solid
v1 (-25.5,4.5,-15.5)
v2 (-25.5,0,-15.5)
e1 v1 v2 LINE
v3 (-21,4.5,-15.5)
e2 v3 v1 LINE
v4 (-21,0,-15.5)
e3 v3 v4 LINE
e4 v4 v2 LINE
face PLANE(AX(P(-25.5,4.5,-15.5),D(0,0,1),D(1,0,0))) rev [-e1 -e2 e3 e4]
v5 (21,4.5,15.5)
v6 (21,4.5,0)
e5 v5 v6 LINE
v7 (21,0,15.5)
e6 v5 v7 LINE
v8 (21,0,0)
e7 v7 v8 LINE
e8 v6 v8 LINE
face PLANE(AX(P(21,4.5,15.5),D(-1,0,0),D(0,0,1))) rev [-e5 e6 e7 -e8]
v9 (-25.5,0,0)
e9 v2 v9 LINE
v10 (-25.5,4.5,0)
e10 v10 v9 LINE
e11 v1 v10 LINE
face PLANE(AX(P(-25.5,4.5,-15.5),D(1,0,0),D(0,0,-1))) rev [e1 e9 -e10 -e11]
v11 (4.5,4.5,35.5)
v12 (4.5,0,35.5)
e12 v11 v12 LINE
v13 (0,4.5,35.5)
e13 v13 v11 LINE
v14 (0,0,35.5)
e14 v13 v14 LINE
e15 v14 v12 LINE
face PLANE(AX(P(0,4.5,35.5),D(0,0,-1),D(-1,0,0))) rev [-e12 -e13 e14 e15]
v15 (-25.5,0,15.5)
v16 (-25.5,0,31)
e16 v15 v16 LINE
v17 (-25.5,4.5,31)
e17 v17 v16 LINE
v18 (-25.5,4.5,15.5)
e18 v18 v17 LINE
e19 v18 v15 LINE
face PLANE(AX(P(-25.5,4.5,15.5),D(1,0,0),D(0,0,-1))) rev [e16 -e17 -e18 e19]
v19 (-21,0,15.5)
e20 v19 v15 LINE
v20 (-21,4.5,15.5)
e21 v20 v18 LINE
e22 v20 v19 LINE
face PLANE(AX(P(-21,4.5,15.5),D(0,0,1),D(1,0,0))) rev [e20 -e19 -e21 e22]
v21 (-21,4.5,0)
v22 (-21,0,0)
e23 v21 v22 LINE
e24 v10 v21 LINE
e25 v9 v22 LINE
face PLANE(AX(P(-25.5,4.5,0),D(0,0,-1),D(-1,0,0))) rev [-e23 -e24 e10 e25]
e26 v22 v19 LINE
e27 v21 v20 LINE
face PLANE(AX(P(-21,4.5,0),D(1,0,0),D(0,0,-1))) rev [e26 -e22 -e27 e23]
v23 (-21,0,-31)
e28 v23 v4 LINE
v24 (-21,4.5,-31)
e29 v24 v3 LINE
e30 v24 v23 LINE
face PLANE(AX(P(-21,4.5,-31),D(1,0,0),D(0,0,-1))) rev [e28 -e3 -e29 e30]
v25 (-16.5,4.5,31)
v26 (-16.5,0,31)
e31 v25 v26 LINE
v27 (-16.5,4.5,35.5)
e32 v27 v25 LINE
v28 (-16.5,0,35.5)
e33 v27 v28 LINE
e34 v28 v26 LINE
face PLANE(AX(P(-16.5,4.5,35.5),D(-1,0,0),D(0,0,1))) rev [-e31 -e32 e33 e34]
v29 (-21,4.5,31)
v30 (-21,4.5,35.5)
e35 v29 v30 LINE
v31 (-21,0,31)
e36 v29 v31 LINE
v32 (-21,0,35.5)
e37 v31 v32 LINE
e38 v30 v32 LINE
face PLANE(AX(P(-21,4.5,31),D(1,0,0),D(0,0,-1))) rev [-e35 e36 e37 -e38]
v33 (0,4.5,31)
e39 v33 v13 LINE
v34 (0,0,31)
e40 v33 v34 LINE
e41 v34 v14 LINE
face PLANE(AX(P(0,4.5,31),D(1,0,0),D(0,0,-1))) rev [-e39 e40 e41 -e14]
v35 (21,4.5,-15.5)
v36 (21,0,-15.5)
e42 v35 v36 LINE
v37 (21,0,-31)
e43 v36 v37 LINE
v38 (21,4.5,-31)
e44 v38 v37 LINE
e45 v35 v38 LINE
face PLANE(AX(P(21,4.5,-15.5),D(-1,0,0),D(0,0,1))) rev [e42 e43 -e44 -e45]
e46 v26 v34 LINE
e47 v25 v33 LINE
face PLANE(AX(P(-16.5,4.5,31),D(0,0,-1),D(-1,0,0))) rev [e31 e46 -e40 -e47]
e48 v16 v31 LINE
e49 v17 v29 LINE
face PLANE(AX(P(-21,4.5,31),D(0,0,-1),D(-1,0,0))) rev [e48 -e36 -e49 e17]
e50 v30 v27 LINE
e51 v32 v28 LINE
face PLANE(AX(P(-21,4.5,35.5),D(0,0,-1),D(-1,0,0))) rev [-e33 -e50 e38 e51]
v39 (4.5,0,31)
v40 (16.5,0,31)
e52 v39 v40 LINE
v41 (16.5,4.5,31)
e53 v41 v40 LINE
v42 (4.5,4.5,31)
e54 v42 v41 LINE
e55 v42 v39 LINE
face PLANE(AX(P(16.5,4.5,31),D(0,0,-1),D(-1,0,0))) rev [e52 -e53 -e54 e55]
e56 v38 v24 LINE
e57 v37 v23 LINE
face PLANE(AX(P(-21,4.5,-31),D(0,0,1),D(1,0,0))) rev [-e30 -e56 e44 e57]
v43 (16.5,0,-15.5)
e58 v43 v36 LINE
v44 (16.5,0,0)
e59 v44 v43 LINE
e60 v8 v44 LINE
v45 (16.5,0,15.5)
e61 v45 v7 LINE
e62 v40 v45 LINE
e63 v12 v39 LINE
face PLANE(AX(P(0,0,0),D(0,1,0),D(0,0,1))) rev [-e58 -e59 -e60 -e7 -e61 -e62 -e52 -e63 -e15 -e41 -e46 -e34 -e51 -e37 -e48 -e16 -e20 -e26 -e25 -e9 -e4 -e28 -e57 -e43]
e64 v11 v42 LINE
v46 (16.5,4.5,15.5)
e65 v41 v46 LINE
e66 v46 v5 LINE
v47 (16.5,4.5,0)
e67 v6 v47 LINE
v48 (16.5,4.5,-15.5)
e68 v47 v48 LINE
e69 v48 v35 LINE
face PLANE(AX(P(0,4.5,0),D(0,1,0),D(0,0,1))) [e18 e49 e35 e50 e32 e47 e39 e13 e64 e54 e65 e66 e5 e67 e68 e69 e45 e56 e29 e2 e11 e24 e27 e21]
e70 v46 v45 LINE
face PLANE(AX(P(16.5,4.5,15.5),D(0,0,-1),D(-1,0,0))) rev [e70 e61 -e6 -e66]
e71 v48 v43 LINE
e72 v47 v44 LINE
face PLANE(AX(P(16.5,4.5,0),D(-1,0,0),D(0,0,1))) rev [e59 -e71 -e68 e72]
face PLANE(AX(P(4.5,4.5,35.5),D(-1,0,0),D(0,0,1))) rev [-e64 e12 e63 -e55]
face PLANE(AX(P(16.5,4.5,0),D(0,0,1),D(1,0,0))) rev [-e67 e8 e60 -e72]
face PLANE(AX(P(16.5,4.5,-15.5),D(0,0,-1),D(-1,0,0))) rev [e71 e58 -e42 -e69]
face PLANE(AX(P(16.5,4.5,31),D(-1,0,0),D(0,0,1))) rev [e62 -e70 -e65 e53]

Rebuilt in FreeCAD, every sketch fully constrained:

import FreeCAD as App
import Part
import Sketcher

V = App.Vector


def add_polygon(sketch, points):
    """Adds a closed chain of lines whose ends are joined by coincident constraints."""
    first, n = sketch.GeometryCount, len(points)
    for a, b in zip(points, points[1:] + points[:1]):
        sketch.addGeometry(Part.LineSegment(App.Vector(*a, 0), App.Vector(*b, 0)), False)
    for i in range(n):
        sketch.addConstraint(Sketcher.Constraint("Coincident", first + i, 2, first + (i + 1) % n, 1))

doc = App.newDocument("Part")
params = doc.addObject("Spreadsheet::Sheet", "Params")
for row, (alias, value) in enumerate([
    ("sketch1_width", "12 mm"),
    ("sketch1_width2", "42 mm"),
    ("sketch1_height", "15.5 mm"),
    ("pad1_length", "4.5 mm"),
], start=1):
    params.set(f"A{row}", alias)
    params.set(f"B{row}", "=" + value)
    params.setAlias(f"B{row}", alias)

body = doc.addObject("PartDesign::Body", "Body")

sketch1 = body.newObject("Sketcher::SketchObject", "Sketch")
sketch1.AttachmentSupport = (doc.getObject("XZ_Plane"), [""])
sketch1.MapMode = "FlatFace"
add_polygon(sketch1, [(-21, 0), (-21, 15.5), (-25.5, 15.5), (-25.5, 31), (-21, 31), (-21, 35.5), (-16.5, 35.5), (-16.5, 31), (0, 31), (0, 35.5), (4.5, 35.5), (4.5, 31), (16.5, 31), (16.5, 15.5), (21, 15.5), (21, 0), (16.5, 0), (16.5, -15.5), (21, -15.5), (21, -31), (-21, -31), (-21, -15.5), (-25.5, -15.5), (-25.5, 0)])
sketch1.addConstraint([
    Sketcher.Constraint("Vertical", 0),
    Sketcher.Constraint("Horizontal", 1),
    Sketcher.Constraint("Vertical", 2),
    Sketcher.Constraint("Horizontal", 3),
    Sketcher.Constraint("Vertical", 4),
    Sketcher.Constraint("Horizontal", 5),
    Sketcher.Constraint("Vertical", 6),
    Sketcher.Constraint("Horizontal", 7),
    Sketcher.Constraint("Vertical", 8),
    Sketcher.Constraint("Horizontal", 9),
    Sketcher.Constraint("Vertical", 10),
    Sketcher.Constraint("Horizontal", 11),
    Sketcher.Constraint("Vertical", 12),
    Sketcher.Constraint("Horizontal", 13),
    Sketcher.Constraint("Vertical", 14),
    Sketcher.Constraint("Horizontal", 15),
    Sketcher.Constraint("Vertical", 16),
    Sketcher.Constraint("Horizontal", 17),
    Sketcher.Constraint("Vertical", 18),
    Sketcher.Constraint("Horizontal", 19),
    Sketcher.Constraint("Vertical", 20),
    Sketcher.Constraint("Horizontal", 21),
    Sketcher.Constraint("Vertical", 22),
    Sketcher.Constraint("Horizontal", 23),
    Sketcher.Constraint("Symmetric", 0, 2, 17, 2, -1, 1),
    Sketcher.Constraint("Symmetric", 3, 2, 18, 2, -1, 1),
    Sketcher.Constraint("Symmetric", 13, 2, 20, 2, -1, 1),
    Sketcher.Constraint("Symmetric", 14, 2, 23, 2, -1, 1),
    Sketcher.Constraint("Symmetric", 6, 2, 11, 2, -2),
    Sketcher.Constraint("Symmetric", 12, 2, 16, 2, -1),
    Sketcher.Constraint("PointOnObject", 7, 2, -2),
    Sketcher.Constraint("PointOnObject", 14, 2, -1),
    Sketcher.Constraint("Horizontal", 3, 2, 6, 2),
    Sketcher.Constraint("Horizontal", 5, 2, 8, 2),
    Sketcher.Constraint("Vertical", 2, 2, 21, 2),
    Sketcher.Constraint("Equal", 3, 5),
    Sketcher.Constraint("Equal", 5, 9),
    Sketcher.Constraint("Equal", 0, 2),
    Sketcher.Constraint("Equal", 23, 4),
    Sketcher.Constraint("DistanceX", 11, 1, 11, 2, 12.0),
    Sketcher.Constraint("DistanceX", 19, 2, 19, 1, 42.0),
    Sketcher.Constraint("DistanceY", 0, 1, 0, 2, 15.5),
])
sketch1.setExpression("Constraints[63]", "Params.sketch1_width")
sketch1.setExpression("Constraints[64]", "Params.sketch1_width2")
sketch1.setExpression("Constraints[65]", "Params.sketch1_height")
pad1 = body.newObject("PartDesign::Pad", "Pad")
pad1.Profile = sketch1
pad1.setExpression("Length", "Params.pad1_length")
pad1.Reversed = True

doc.recompute()
